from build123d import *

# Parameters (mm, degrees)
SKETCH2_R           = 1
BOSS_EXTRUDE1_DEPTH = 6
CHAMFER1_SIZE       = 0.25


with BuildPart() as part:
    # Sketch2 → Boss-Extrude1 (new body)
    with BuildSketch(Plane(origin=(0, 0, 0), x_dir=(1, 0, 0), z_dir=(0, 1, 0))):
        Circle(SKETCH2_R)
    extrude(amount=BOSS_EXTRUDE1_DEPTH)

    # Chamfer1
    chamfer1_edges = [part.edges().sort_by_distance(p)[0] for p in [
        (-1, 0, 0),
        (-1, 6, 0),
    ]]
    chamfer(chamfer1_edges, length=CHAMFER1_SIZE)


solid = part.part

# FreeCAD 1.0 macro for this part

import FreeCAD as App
import Part
import Sketcher
from FreeCAD import Vector
Q = App.Units.Quantity


def edges_at(feature, points):
    """Names of the edges that pass closest to the given points."""
    edges = feature.Shape.Edges
    near = lambda p: min(range(len(edges)), key=lambda i: edges[i].distToShape(Part.Vertex(*p))[0])
    return sorted({f"Edge{near(p) + 1}" for p in points})

doc = App.newDocument("Part")
params = doc.addObject("Spreadsheet::Sheet", "Params")
for row, (alias, value) in enumerate([
    ("sketch1_diameter", "2 mm"),
    ("pad1_length", "6 mm"),
    ("chamfer_size", "0.25 mm"),
], start=1):
    params.set(f"A{row}", alias)
    params.set(f"B{row}", "=" + value)
    params.setAlias(f"B{row}", alias)

body = doc.addObject("PartDesign::Body", "Body")

# Sketch on XZ plane
sketch1 = body.newObject("Sketcher::SketchObject", "Sketch")
sketch1.AttachmentSupport = (doc.getObject("XZ_Plane"), [""])
sketch1.MapMode = "FlatFace"
sketch1.addGeometry(Part.Circle(Vector(0, 0, 0), Vector(0, 0, 1), 1), False)
sketch1.addConstraint([
    Sketcher.Constraint("Coincident", 0, 3, -1, 1),
    Sketcher.Constraint("Diameter", 0, Q("2 mm")),
])
sketch1.setExpression("Constraints[1]", "Params.sketch1_diameter")
pad1 = body.newObject("PartDesign::Pad", "Pad")
pad1.Profile = sketch1
pad1.setExpression("Length", "Params.pad1_length")
pad1.Reversed = True
doc.recompute()

chamfer = body.newObject("PartDesign::Chamfer", "Chamfer")
chamfer.Base = (pad1, edges_at(pad1, [(-1, 0, 0), (-1, 6, 0)]))
chamfer.setExpression("Size", "Params.chamfer_size")

doc.recompute()
